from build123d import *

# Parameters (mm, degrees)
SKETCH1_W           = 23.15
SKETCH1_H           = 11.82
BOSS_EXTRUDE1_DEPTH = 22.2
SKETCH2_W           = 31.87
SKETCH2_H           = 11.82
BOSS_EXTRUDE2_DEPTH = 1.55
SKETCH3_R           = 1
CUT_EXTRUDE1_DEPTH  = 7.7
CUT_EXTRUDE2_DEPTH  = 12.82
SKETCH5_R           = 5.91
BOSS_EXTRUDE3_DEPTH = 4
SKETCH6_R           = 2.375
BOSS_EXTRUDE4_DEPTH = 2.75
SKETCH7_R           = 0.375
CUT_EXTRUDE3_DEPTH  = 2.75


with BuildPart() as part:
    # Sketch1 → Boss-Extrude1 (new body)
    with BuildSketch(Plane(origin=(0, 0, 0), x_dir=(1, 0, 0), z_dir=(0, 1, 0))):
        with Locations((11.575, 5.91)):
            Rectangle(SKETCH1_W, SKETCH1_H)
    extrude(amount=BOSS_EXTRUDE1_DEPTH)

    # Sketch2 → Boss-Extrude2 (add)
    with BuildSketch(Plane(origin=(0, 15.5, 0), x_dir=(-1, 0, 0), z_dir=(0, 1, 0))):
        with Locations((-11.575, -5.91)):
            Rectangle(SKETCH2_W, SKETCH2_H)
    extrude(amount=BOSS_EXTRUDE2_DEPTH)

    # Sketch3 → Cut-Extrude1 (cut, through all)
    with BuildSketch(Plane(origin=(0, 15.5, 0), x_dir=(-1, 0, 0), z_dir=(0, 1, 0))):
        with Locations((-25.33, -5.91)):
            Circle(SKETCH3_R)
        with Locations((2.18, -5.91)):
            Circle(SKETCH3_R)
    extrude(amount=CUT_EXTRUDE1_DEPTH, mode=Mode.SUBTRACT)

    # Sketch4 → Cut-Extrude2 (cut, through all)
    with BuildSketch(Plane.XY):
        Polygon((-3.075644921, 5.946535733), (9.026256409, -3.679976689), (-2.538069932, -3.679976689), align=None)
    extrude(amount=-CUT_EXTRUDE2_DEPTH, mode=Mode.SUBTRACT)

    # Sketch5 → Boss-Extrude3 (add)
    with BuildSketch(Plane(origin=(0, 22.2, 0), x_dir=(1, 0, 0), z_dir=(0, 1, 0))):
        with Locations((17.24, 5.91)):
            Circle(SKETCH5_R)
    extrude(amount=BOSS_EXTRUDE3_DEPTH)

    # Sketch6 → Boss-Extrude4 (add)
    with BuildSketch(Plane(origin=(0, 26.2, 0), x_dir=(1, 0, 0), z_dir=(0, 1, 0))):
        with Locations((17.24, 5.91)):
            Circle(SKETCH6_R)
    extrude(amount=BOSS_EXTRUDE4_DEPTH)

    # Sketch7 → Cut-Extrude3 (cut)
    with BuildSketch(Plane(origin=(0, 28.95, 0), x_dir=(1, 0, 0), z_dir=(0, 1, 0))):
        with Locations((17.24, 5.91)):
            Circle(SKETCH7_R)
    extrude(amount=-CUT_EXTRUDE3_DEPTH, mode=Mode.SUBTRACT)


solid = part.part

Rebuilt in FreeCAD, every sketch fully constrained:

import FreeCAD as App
import Part
import Sketcher


def add_polygon(sketch, points):
    """Adds a closed chain of lines whose ends are joined by coincident constraints."""
    first, n = sketch.GeometryCount, len(points)
    for a, b in zip(points, points[1:] + points[:1]):
        sketch.addGeometry(Part.LineSegment(App.Vector(*a, 0), App.Vector(*b, 0)), False)
    for i in range(n):
        sketch.addConstraint(Sketcher.Constraint("Coincident", first + i, 2, first + (i + 1) % n, 1))

doc = App.newDocument("Part")
body = doc.addObject("PartDesign::Body", "Body")

# Sketch on XZ plane
sketch1 = body.newObject("Sketcher::SketchObject", "Sketch")
sketch1.AttachmentSupport = (doc.getObject("XZ_Plane"), [""])
sketch1.MapMode = "FlatFace"
add_polygon(sketch1, [(0, -11.82), (0, 0), (23.15, 0), (23.15, -11.82)])  # lines 0-3
sketch1.addConstraint(Sketcher.Constraint("Vertical", 0))
sketch1.addConstraint(Sketcher.Constraint("Horizontal", 1))
sketch1.addConstraint(Sketcher.Constraint("Vertical", 2))
sketch1.addConstraint(Sketcher.Constraint("Horizontal", 3))
sketch1.addConstraint(Sketcher.Constraint("Coincident", 0, 2, -1, 1))
sketch1.addConstraint(Sketcher.Constraint("DistanceX", 1, 1, 1, 2, 23.15))
sketch1.addConstraint(Sketcher.Constraint("DistanceY", 0, 1, 0, 2, 11.82))
pad1 = body.newObject("PartDesign::Pad", "Pad")
pad1.Profile = sketch1
pad1.Length = 22.2
pad1.Reversed = True

# Sketch on XZ plane
sketch2 = body.newObject("Sketcher::SketchObject", "Sketch001")
sketch2.AttachmentSupport = (doc.getObject("XZ_Plane"), [""])
sketch2.MapMode = "FlatFace"
sketch2.AttachmentOffset = App.Placement(App.Vector(0, 0, -15.5), App.Rotation())
add_polygon(sketch2, [(27.51, 0), (27.51, -11.82), (-4.36, -11.82), (-4.36, 0)])  # lines 0-3
sketch2.addConstraint(Sketcher.Constraint("Vertical", 0))
sketch2.addConstraint(Sketcher.Constraint("Horizontal", 1))
sketch2.addConstraint(Sketcher.Constraint("Vertical", 2))
sketch2.addConstraint(Sketcher.Constraint("Horizontal", 3))
sketch2.addConstraint(Sketcher.Constraint("PointOnObject", 2, 2, -1))
sketch2.addConstraint(Sketcher.Constraint("DistanceX", 1, 2, 1, 1, 31.87))
sketch2.addConstraint(Sketcher.Constraint("DistanceY", 0, 2, 0, 1, 11.82))
sketch2.addConstraint(Sketcher.Constraint("DistanceX", -1, 1, 0, 2, 27.51))
pad2 = body.newObject("PartDesign::Pad", "Pad001")
pad2.Profile = sketch2
pad2.Length = 1.55
pad2.Reversed = True

# Sketch on XZ plane
sketch3 = body.newObject("Sketcher::SketchObject", "Sketch002")
sketch3.AttachmentSupport = (doc.getObject("XZ_Plane"), [""])
sketch3.MapMode = "FlatFace"
sketch3.AttachmentOffset = App.Placement(App.Vector(0, 0, -15.5), App.Rotation())
sketch3.addGeometry(Part.Circle(App.Vector(25.33, -5.91, 0), App.Vector(0, 0, 1), 1), False)
sketch3.addGeometry(Part.Circle(App.Vector(-2.18, -5.91, 0), App.Vector(0, 0, 1), 1), False)
sketch3.addConstraint(Sketcher.Constraint("Equal", 0, 1))
sketch3.addConstraint(Sketcher.Constraint("Horizontal", 0, 3, 1, 3))
sketch3.addConstraint(Sketcher.Constraint("Diameter", 0, 2.0))
sketch3.addConstraint(Sketcher.Constraint("DistanceX", -1, 1, 0, 3, 25.33))
sketch3.addConstraint(Sketcher.Constraint("DistanceY", 0, 3, -1, 1, 5.91))
sketch3.addConstraint(Sketcher.Constraint("DistanceX", 1, 3, -1, 1, 2.18))
pocket1 = body.newObject("PartDesign::Pocket", "Pocket")
pocket1.Profile = sketch3
pocket1.Type = "ThroughAll"

# Sketch on XY plane
sketch4 = body.newObject("Sketcher::SketchObject", "Sketch003")
sketch4.AttachmentSupport = (doc.getObject("XY_Plane"), [""])
sketch4.MapMode = "FlatFace"
add_polygon(sketch4, [(9.026256, -3.679977), (-3.075645, 5.946536), (-2.53807, -3.679977)])  # lines 0-2
sketch4.addConstraint(Sketcher.Constraint("Horizontal", 2))
sketch4.addConstraint(Sketcher.Constraint("DistanceX", 0, 2, 2, 2, 12.101901))
sketch4.addConstraint(Sketcher.Constraint("Distance", 0, 15.463692))
sketch4.addConstraint(Sketcher.Constraint("Distance", 1, 9.641511))
sketch4.addConstraint(Sketcher.Constraint("DistanceX", 1, 2, -1, 1, 2.53807))
sketch4.addConstraint(Sketcher.Constraint("DistanceY", -1, 1, 0, 2, 5.946536))
pocket2 = body.newObject("PartDesign::Pocket", "Pocket001")
pocket2.Profile = sketch4
pocket2.Type = "ThroughAll"

# Sketch on XZ plane
sketch5 = body.newObject("Sketcher::SketchObject", "Sketch004")
sketch5.AttachmentSupport = (doc.getObject("XZ_Plane"), [""])
sketch5.MapMode = "FlatFace"
sketch5.AttachmentOffset = App.Placement(App.Vector(0, 0, -22.2), App.Rotation())
sketch5.addGeometry(Part.Circle(App.Vector(17.24, -5.91, 0), App.Vector(0, 0, 1), 5.91), False)
sketch5.addConstraint(Sketcher.Constraint("Diameter", 0, 11.82))
sketch5.addConstraint(Sketcher.Constraint("DistanceX", -1, 1, 0, 3, 17.24))
sketch5.addConstraint(Sketcher.Constraint("DistanceY", 0, 3, -1, 1, 5.91))
pad3 = body.newObject("PartDesign::Pad", "Pad002")
pad3.Profile = sketch5
pad3.Length = 4
pad3.Reversed = True

# Sketch on XZ plane
sketch6 = body.newObject("Sketcher::SketchObject", "Sketch005")
sketch6.AttachmentSupport = (doc.getObject("XZ_Plane"), [""])
sketch6.MapMode = "FlatFace"
sketch6.AttachmentOffset = App.Placement(App.Vector(0, 0, -26.2), App.Rotation())
sketch6.addGeometry(Part.Circle(App.Vector(17.24, -5.91, 0), App.Vector(0, 0, 1), 2.375), False)
sketch6.addConstraint(Sketcher.Constraint("Diameter", 0, 4.75))
sketch6.addConstraint(Sketcher.Constraint("DistanceX", -1, 1, 0, 3, 17.24))
sketch6.addConstraint(Sketcher.Constraint("DistanceY", 0, 3, -1, 1, 5.91))
pad4 = body.newObject("PartDesign::Pad", "Pad003")
pad4.Profile = sketch6
pad4.Length = 2.75
pad4.Reversed = True

# Sketch on XZ plane
sketch7 = body.newObject("Sketcher::SketchObject", "Sketch006")
sketch7.AttachmentSupport = (doc.getObject("XZ_Plane"), [""])
sketch7.MapMode = "FlatFace"
sketch7.AttachmentOffset = App.Placement(App.Vector(0, 0, -28.95), App.Rotation())
sketch7.addGeometry(Part.Circle(App.Vector(17.24, -5.91, 0), App.Vector(0, 0, 1), 0.375), False)
sketch7.addConstraint(Sketcher.Constraint("Diameter", 0, 0.75))
sketch7.addConstraint(Sketcher.Constraint("DistanceX", -1, 1, 0, 3, 17.24))
sketch7.addConstraint(Sketcher.Constraint("DistanceY", 0, 3, -1, 1, 5.91))
pocket3 = body.newObject("PartDesign::Pocket", "Pocket002")
pocket3.Profile = sketch7
pocket3.Length = 2.75
pocket3.Reversed = True

doc.recompute()
